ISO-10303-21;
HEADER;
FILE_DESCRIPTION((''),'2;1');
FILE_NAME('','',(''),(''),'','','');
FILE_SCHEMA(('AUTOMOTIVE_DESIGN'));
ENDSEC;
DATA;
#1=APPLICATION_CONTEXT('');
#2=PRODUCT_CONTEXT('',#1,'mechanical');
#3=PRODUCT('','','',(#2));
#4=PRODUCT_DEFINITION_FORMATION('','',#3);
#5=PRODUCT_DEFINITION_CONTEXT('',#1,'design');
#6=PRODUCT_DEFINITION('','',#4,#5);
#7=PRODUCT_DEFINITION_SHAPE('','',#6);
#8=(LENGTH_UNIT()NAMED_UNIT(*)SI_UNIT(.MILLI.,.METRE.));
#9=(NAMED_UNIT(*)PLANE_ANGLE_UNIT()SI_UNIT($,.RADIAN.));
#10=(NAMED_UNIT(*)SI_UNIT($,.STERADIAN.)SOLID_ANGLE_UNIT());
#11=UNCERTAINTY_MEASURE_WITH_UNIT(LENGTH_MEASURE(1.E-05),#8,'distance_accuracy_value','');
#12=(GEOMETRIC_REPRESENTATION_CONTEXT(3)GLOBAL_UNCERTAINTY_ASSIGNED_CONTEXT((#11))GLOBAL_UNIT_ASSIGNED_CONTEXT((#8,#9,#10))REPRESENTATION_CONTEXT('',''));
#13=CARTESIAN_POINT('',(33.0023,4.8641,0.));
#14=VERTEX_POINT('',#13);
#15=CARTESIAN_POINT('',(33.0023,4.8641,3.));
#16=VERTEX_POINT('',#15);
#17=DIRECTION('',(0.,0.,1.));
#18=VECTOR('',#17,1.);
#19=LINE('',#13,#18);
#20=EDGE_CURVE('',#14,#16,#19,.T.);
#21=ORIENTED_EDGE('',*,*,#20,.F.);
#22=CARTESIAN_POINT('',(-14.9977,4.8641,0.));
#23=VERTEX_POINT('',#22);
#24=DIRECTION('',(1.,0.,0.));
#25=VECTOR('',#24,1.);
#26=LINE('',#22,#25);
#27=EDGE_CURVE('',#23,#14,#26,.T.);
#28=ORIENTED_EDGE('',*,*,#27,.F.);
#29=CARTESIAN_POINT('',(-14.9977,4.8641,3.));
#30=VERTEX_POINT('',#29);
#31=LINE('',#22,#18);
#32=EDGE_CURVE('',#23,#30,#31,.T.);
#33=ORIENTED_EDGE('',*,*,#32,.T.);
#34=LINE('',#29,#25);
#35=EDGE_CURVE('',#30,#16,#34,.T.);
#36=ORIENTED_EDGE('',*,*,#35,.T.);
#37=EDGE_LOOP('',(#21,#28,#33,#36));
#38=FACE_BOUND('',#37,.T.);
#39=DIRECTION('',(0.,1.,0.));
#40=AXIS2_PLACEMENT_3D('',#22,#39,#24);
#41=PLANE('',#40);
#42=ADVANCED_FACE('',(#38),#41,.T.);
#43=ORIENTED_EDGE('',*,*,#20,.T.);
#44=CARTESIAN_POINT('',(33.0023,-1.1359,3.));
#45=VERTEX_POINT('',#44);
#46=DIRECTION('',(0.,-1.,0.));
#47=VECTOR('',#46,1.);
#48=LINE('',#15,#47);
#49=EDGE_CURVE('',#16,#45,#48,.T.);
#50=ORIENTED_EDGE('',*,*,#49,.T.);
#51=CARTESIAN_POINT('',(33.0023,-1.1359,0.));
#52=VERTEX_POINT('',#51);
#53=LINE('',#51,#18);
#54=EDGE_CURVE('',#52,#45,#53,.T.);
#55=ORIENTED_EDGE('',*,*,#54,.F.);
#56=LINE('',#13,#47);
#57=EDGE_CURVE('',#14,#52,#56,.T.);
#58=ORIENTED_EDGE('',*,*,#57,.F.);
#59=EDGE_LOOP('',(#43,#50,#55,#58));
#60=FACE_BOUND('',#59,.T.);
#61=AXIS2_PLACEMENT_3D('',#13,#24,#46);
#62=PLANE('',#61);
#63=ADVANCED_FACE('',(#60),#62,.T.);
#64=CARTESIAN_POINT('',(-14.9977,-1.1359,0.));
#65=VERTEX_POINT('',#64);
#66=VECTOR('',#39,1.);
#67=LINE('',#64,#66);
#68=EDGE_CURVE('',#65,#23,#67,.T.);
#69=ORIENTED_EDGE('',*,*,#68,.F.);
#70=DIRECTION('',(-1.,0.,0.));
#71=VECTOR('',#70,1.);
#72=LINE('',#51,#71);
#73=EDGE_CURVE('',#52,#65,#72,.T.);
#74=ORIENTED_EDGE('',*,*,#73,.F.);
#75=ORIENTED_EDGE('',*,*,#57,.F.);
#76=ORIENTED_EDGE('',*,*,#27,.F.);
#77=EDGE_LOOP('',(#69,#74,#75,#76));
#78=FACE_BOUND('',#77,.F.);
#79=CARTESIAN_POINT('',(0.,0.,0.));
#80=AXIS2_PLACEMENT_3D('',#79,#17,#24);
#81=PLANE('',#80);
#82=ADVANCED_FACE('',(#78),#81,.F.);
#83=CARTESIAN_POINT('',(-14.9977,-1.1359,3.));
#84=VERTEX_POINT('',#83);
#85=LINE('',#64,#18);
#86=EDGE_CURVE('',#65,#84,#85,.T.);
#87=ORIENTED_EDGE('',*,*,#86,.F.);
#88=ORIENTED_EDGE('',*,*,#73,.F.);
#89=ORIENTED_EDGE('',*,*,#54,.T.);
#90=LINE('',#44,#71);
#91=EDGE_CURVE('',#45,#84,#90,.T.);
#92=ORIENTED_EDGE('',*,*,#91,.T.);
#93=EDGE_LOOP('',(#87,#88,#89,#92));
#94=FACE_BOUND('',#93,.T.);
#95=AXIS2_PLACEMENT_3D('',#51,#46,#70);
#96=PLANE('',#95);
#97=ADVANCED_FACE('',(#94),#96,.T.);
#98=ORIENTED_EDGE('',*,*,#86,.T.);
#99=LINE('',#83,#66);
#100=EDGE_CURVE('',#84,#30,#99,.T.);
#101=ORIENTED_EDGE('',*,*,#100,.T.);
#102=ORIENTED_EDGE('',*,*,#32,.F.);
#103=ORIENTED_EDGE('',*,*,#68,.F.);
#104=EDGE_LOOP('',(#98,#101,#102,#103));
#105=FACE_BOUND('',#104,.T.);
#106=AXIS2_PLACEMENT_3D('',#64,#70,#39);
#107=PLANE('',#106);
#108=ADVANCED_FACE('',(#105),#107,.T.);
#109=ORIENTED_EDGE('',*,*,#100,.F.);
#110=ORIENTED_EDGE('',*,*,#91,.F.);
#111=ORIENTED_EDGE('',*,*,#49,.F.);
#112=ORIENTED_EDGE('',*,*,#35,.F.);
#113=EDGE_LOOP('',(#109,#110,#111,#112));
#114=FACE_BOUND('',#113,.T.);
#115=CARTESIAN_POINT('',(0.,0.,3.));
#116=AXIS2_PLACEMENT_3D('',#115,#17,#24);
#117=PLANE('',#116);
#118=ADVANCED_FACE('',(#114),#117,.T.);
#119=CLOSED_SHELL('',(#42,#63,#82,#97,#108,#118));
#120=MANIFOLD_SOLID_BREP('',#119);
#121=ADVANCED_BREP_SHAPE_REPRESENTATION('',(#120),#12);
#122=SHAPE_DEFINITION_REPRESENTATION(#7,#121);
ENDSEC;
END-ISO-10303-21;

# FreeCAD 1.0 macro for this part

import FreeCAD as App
import Part
import Sketcher
Q = App.Units.Quantity


def add_polygon(sketch, points):
    """Adds a closed chain of lines whose ends are joined by coincident constraints."""
    first, n = sketch.GeometryCount, len(points)
    for a, b in zip(points, points[1:] + points[:1]):
        sketch.addGeometry(Part.LineSegment(App.Vector(*a, 0), App.Vector(*b, 0)), False)
    for i in range(n):
        sketch.addConstraint(Sketcher.Constraint("Coincident", first + i, 2, first + (i + 1) % n, 1))

doc = App.newDocument("Part")
params = doc.addObject("Spreadsheet::Sheet", "Params")
for row, (alias, value) in enumerate([
    ("sketch1_width", "48 mm"),
    ("sketch1_height", "6 mm"),
    ("pad1_length", "3 mm"),
], start=1):
    params.set(f"A{row}", alias)
    params.set(f"B{row}", "=" + value)
    params.setAlias(f"B{row}", alias)

body = doc.addObject("PartDesign::Body", "Body")

# Sketch on XY plane
sketch1 = body.newObject("Sketcher::SketchObject", "Sketch")
sketch1.AttachmentSupport = (doc.getObject("XY_Plane"), [""])
sketch1.MapMode = "FlatFace"
add_polygon(sketch1, [(33.0023, 4.8641), (-14.9977, 4.8641), (-14.9977, -1.1359), (33.0023, -1.1359)])  # lines 0-3
sketch1.addConstraint([
    Sketcher.Constraint("Horizontal", 0),
    Sketcher.Constraint("Vertical", 1),
    Sketcher.Constraint("Horizontal", 2),
    Sketcher.Constraint("Vertical", 3),
    Sketcher.Constraint("DistanceX", 0, 2, 0, 1, Q("48 mm")),
    Sketcher.Constraint("DistanceY", 1, 2, 1, 1, Q("6 mm")),
    Sketcher.Constraint("DistanceY", -1, 1, 0, 2, Q("4.864 mm")),
    Sketcher.Constraint("DistanceX", 0, 2, -1, 1, Q("14.9977 mm")),
])
sketch1.setExpression("Constraints[8]", "Params.sketch1_width")
sketch1.setExpression("Constraints[9]", "Params.sketch1_height")
pad1 = body.newObject("PartDesign::Pad", "Pad")
pad1.Profile = sketch1
pad1.setExpression("Length", "Params.pad1_length")

doc.recompute()
